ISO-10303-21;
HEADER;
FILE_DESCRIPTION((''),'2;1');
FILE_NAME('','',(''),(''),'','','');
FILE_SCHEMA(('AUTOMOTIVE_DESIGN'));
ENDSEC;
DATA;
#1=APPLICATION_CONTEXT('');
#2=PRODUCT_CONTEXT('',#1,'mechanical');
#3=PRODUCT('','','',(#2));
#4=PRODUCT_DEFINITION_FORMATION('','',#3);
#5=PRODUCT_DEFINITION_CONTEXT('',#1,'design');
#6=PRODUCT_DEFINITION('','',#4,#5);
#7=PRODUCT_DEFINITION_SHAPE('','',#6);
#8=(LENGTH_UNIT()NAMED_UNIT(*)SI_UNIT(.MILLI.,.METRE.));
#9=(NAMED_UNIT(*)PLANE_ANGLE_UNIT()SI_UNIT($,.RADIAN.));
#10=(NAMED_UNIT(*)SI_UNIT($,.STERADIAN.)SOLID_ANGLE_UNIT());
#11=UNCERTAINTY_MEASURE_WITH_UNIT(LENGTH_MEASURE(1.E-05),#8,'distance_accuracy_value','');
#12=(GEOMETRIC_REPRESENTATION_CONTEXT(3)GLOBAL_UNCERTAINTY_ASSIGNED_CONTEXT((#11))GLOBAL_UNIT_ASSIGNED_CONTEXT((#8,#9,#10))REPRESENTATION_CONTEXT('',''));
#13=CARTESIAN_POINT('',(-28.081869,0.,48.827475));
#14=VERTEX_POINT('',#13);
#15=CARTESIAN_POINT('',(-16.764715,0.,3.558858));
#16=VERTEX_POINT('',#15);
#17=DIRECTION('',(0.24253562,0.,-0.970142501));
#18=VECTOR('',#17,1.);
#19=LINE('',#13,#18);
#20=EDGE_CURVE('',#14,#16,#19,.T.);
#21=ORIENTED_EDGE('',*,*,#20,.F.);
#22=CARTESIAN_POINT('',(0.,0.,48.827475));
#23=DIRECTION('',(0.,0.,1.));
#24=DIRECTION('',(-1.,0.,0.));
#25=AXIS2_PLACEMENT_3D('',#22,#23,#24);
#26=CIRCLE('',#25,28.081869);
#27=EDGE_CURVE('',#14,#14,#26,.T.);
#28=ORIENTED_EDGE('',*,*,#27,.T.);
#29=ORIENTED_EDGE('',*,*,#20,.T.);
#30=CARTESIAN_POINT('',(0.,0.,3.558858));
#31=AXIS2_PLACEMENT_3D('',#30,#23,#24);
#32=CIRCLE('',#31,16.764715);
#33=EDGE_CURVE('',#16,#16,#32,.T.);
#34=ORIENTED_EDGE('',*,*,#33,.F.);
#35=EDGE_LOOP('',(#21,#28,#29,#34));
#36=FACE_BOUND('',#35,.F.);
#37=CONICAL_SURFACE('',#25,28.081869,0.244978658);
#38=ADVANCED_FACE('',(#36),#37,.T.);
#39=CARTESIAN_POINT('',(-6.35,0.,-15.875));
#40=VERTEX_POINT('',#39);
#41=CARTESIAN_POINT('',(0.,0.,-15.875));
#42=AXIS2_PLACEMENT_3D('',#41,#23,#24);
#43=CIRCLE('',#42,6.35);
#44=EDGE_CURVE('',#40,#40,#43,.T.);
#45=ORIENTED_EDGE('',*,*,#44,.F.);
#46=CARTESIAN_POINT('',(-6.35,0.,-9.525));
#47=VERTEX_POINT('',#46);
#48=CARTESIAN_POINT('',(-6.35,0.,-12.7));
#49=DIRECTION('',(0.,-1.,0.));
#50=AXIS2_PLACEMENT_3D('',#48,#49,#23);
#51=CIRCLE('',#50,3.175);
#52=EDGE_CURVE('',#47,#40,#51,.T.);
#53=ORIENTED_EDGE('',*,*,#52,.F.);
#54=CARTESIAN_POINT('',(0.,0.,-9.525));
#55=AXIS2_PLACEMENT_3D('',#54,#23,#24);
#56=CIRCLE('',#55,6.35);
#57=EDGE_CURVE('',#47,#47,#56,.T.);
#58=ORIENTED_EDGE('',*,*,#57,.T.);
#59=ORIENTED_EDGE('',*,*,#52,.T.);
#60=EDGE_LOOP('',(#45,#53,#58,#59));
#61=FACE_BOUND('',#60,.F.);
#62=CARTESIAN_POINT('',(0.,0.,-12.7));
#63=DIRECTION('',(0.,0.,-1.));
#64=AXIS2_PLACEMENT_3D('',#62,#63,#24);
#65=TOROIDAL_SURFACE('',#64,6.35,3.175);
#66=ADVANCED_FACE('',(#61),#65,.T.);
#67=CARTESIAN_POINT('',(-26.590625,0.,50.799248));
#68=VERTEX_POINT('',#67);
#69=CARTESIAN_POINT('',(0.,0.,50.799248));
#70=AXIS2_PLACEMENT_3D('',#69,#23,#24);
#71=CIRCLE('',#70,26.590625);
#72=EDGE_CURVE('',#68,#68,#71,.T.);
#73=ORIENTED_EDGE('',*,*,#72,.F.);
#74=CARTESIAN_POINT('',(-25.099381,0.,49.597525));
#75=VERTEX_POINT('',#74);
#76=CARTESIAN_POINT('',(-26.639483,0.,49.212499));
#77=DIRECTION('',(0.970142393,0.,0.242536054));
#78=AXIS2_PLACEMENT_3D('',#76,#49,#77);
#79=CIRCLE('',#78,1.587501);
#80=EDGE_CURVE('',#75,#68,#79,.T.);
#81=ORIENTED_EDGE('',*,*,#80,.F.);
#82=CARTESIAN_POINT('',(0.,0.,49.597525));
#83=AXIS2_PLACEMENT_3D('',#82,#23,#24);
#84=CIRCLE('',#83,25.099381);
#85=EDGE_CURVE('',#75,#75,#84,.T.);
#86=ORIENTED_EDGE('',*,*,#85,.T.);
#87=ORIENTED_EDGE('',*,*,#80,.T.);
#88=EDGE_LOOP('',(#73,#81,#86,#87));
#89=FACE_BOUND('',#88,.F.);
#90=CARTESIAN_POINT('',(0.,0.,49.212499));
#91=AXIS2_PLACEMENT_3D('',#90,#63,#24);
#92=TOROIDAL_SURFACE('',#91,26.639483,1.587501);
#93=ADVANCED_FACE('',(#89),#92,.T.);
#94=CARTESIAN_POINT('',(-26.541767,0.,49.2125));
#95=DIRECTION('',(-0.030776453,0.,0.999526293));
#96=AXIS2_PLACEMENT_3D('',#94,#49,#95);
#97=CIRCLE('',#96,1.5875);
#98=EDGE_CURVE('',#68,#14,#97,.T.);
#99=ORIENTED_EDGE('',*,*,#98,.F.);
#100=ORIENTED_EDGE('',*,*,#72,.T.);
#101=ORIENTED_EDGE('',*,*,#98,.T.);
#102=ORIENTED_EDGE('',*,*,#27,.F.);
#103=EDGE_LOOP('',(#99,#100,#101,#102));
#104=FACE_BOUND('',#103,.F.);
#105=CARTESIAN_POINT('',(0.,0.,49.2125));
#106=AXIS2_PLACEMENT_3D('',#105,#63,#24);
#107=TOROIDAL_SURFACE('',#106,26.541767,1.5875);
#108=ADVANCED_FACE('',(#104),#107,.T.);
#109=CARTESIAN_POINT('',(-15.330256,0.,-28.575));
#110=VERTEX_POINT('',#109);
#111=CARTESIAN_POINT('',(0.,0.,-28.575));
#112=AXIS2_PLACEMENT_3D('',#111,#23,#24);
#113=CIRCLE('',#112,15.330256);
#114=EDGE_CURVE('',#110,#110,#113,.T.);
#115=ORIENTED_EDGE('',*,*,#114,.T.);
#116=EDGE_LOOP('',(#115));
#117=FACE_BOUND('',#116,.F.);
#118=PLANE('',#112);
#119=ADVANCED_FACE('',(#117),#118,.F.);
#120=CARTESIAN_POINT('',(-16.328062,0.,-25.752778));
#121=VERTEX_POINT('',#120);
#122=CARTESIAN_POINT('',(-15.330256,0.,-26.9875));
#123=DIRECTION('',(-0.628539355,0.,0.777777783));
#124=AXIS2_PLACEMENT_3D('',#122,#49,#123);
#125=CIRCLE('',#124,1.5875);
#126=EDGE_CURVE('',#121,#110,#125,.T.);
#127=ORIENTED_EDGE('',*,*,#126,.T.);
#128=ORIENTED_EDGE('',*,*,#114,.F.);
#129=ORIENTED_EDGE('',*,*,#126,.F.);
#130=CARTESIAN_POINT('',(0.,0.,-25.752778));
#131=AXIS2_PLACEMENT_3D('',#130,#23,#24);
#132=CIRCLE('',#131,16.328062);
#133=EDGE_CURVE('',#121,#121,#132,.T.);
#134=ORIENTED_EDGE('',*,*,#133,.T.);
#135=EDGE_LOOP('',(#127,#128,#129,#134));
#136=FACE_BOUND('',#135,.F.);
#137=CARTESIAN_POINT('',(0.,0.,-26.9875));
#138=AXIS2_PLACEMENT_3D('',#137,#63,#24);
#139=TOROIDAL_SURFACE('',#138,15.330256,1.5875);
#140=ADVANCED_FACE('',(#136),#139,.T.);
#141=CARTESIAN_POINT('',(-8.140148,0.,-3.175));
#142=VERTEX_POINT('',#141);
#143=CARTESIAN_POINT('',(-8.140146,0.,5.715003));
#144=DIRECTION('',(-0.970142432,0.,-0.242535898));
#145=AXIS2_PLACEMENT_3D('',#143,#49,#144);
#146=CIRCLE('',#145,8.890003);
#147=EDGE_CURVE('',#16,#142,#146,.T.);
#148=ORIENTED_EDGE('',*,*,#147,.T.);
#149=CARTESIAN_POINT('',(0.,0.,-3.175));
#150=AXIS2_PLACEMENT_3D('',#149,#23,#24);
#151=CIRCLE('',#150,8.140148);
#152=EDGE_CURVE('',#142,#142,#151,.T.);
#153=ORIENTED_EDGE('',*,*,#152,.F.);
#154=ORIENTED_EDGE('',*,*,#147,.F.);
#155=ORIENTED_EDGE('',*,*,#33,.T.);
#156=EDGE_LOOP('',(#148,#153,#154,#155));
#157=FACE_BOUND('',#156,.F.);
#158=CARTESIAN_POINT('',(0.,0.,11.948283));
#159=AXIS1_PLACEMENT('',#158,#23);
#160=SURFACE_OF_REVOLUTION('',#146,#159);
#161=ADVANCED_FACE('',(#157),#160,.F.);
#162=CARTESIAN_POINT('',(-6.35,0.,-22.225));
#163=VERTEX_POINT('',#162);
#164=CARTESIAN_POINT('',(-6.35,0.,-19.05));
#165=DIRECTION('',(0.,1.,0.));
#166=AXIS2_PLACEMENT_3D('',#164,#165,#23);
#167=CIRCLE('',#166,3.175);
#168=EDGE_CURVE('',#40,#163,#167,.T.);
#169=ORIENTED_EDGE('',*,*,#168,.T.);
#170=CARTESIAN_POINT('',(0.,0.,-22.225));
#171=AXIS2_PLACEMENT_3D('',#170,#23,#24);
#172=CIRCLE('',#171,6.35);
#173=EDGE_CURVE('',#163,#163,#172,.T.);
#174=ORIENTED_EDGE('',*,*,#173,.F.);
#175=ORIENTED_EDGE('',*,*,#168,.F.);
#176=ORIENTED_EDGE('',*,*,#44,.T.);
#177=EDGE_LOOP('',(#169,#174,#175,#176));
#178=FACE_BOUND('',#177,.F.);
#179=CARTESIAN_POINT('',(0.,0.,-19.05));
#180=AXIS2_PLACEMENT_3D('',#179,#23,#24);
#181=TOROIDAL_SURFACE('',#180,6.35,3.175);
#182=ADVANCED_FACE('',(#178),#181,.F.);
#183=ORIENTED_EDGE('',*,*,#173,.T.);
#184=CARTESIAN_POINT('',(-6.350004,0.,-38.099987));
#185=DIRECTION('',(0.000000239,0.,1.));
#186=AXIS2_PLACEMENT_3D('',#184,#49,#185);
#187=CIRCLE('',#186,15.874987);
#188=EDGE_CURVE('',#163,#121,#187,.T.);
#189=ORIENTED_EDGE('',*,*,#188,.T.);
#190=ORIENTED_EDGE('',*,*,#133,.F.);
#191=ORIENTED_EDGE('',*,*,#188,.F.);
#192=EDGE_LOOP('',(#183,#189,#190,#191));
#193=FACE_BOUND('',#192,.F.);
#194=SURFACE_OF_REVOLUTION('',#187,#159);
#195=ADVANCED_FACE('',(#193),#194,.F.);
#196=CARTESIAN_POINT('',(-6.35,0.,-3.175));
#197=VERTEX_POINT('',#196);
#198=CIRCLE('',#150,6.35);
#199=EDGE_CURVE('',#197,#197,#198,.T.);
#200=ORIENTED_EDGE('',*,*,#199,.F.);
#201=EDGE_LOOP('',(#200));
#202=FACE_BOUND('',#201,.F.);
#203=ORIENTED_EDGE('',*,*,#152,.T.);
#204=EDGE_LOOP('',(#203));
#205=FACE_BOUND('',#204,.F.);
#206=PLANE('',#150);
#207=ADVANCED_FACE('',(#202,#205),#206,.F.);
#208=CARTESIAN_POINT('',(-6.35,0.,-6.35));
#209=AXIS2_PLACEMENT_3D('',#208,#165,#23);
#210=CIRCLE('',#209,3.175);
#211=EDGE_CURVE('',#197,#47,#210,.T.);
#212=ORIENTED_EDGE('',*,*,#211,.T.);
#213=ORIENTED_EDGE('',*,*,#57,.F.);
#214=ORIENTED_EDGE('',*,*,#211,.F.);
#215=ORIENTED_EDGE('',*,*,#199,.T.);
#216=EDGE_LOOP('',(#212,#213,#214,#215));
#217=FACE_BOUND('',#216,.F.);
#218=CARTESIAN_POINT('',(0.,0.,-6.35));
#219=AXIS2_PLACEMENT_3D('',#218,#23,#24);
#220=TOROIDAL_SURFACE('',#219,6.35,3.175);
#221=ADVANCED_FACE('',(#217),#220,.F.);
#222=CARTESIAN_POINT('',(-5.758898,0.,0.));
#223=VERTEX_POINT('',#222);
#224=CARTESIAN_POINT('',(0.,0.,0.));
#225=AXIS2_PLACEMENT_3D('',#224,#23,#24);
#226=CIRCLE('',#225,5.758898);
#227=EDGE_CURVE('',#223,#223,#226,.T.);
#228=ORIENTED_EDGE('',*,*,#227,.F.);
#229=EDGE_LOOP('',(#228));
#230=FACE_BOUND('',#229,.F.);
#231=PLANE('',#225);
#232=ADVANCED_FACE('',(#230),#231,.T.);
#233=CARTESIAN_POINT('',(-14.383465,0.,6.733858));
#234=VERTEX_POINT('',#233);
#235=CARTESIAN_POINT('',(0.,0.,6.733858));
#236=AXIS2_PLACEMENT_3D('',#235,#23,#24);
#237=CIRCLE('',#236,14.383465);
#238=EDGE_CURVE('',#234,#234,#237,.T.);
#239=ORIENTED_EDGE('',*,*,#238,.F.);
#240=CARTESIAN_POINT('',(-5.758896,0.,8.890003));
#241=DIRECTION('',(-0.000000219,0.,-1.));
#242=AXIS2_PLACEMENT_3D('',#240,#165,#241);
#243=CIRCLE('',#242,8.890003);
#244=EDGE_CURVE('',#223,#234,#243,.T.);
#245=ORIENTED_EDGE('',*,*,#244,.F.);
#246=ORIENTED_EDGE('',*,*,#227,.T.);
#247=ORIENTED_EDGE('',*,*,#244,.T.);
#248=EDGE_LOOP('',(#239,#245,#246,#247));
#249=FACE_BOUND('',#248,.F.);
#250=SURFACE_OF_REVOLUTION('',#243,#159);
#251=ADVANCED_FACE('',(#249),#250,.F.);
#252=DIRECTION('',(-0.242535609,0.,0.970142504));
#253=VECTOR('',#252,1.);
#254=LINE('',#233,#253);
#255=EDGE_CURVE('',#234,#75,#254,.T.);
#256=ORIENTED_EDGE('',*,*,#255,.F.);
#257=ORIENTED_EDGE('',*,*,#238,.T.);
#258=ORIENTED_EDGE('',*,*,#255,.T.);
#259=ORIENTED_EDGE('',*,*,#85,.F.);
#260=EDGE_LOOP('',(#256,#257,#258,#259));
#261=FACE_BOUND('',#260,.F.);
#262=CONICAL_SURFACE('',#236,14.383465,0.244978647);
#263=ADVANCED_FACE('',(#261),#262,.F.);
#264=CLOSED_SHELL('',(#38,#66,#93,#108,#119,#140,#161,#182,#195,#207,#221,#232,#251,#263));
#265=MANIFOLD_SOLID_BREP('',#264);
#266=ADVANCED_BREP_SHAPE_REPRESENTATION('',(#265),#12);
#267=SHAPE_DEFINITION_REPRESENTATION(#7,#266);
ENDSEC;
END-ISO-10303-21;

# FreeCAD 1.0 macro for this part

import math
import FreeCAD as App
import Part
import Sketcher

V = App.Vector
Q = App.Units.Quantity

doc = App.newDocument("Part")
body = doc.addObject("PartDesign::Body", "Body")

# Sketch on XZ plane
sketch1 = body.newObject("Sketcher::SketchObject", "Sketch")
sketch1.AttachmentSupport = (doc.getObject("XZ_Plane"), [""])
sketch1.MapMode = "FlatFace"
sketch1.addGeometry([
    Part.LineSegment(V(0, -28.6, 0), V(0, 0, 0)),  # 0
    Part.LineSegment(V(0, 0, 0), V(-5.8, 0, 0)),  # 1
    Part.ArcOfCircle(Part.Circle(V(-5.8, 8.9, 0), V(0, 0, 1), 8.9), math.radians(-166), math.radians(-90)),  # 2
    Part.LineSegment(V(-14.4, 6.7, 0), V(-25.1, 49.6, 0)),  # 3
    Part.ArcOfCircle(Part.Circle(V(-26.6, 49.2, 0), V(0, 0, 1), 1.6), math.radians(14), math.radians(88)),  # 4
    Part.ArcOfCircle(Part.Circle(V(-26.5, 49.2, 0), V(0, 0, 1), 1.6), math.radians(92), math.radians(194)),  # 5
    Part.LineSegment(V(-28.1, 48.8, 0), V(-16.8, 3.6, 0)),  # 6
    Part.ArcOfCircle(Part.Circle(V(-8.1, 5.7, 0), V(0, 0, 1), 8.9), math.radians(-166), math.radians(-90)),  # 7
    Part.LineSegment(V(-8.1, -3.2, 0), V(-6.3, -3.2, 0)),  # 8
    Part.ArcOfCircle(Part.Circle(V(-6.3, -6.3, 0), V(0, 0, 1), 3.2), math.radians(-90), math.radians(90)),  # 9
    Part.ArcOfCircle(Part.Circle(V(-6.3, -12.7, 0), V(0, 0, 1), 3.2), math.radians(90), math.radians(270)),  # 10
    Part.ArcOfCircle(Part.Circle(V(-6.3, -19.1, 0), V(0, 0, 1), 3.2), math.radians(-90), math.radians(90)),  # 11
    Part.ArcOfCircle(Part.Circle(V(-6.4, -38.1, 0), V(0, 0, 1), 15.9), math.radians(90), math.radians(129)),  # 12
    Part.ArcOfCircle(Part.Circle(V(-15.3, -27, 0), V(0, 0, 1), 1.6), math.radians(129), math.radians(270)),  # 13
    Part.LineSegment(V(-15.3, -28.6, 0), V(0, -28.6, 0)),  # 14
], False)
sketch1.addConstraint([
    Sketcher.Constraint("Coincident", 0, 2, 1, 1),
    Sketcher.Constraint("Tangent", 1, 2, 2, 2),
    Sketcher.Constraint("Tangent", 2, 1, 3, 1),
    Sketcher.Constraint("Tangent", 3, 2, 4, 1),
    Sketcher.Constraint("Coincident", 4, 2, 5, 1),
    Sketcher.Constraint("Tangent", 5, 2, 6, 1),
    Sketcher.Constraint("Tangent", 6, 2, 7, 1),
    Sketcher.Constraint("Tangent", 7, 2, 8, 1),
    Sketcher.Constraint("Tangent", 8, 2, 9, 2),
    Sketcher.Constraint("Tangent", 9, 1, 10, 1),
    Sketcher.Constraint("Tangent", 10, 2, 11, 2),
    Sketcher.Constraint("Tangent", 11, 1, 12, 1),
    Sketcher.Constraint("Tangent", 12, 2, 13, 1),
    Sketcher.Constraint("Tangent", 13, 2, 14, 1),
    Sketcher.Constraint("Coincident", 14, 2, 0, 1),
    Sketcher.Constraint("Vertical", 0),
    Sketcher.Constraint("Horizontal", 1),
    Sketcher.Constraint("Horizontal", 8),
    Sketcher.Constraint("Horizontal", 14),
    Sketcher.Constraint("Coincident", 0, 2, -1, 1),
    Sketcher.Constraint("Equal", 4, 5),
    Sketcher.Constraint("Equal", 2, 7),
    Sketcher.Constraint("Equal", 9, 10),
    Sketcher.Constraint("Equal", 10, 11),
    Sketcher.Constraint("Equal", 5, 13),
    Sketcher.Constraint("Parallel", 3, 6),
    Sketcher.Constraint("Horizontal", 4, 3, 5, 3),
    Sketcher.Constraint("Vertical", 9, 3, 10, 3),
    Sketcher.Constraint("Vertical", 10, 3, 11, 3),
    Sketcher.Constraint("Vertical", 10, 2, 11, 1),
    Sketcher.Constraint("Radius", 2, Q("0.3500001 in")),
    Sketcher.Constraint("Radius", 4, Q("0.0625001 in")),
    Sketcher.Constraint("Radius", 9, Q("0.125 in")),
    Sketcher.Constraint("DistanceY", 10, 3, -1, 1, Q("0.5 in")),
    Sketcher.Constraint("DistanceY", 14, 2, 10, 2, Q("0.5 in")),
    Sketcher.Constraint("DistanceX", 9, 3, -1, 1, Q("0.25 in")),
    Sketcher.Constraint("DistanceY", -1, 1, 4, 3, Q("1.9374999 in")),
    Sketcher.Constraint("DistanceX", 4, 2, -1, 1, Q("1.046875 in")),
    Sketcher.Constraint("DistanceX", 7, 3, 2, 3, Q("0.09375 in")),
    Sketcher.Constraint("DistanceX", 1, 2, 1, 1, 5.758898),
    Sketcher.Constraint("Radius", 12, 15.874987),
])
revolution = body.newObject("PartDesign::Revolution", "Revolution")
revolution.Profile = sketch1
revolution.ReferenceAxis = (sketch1, ["V_Axis"])
revolution.Angle = 360

doc.recompute()
